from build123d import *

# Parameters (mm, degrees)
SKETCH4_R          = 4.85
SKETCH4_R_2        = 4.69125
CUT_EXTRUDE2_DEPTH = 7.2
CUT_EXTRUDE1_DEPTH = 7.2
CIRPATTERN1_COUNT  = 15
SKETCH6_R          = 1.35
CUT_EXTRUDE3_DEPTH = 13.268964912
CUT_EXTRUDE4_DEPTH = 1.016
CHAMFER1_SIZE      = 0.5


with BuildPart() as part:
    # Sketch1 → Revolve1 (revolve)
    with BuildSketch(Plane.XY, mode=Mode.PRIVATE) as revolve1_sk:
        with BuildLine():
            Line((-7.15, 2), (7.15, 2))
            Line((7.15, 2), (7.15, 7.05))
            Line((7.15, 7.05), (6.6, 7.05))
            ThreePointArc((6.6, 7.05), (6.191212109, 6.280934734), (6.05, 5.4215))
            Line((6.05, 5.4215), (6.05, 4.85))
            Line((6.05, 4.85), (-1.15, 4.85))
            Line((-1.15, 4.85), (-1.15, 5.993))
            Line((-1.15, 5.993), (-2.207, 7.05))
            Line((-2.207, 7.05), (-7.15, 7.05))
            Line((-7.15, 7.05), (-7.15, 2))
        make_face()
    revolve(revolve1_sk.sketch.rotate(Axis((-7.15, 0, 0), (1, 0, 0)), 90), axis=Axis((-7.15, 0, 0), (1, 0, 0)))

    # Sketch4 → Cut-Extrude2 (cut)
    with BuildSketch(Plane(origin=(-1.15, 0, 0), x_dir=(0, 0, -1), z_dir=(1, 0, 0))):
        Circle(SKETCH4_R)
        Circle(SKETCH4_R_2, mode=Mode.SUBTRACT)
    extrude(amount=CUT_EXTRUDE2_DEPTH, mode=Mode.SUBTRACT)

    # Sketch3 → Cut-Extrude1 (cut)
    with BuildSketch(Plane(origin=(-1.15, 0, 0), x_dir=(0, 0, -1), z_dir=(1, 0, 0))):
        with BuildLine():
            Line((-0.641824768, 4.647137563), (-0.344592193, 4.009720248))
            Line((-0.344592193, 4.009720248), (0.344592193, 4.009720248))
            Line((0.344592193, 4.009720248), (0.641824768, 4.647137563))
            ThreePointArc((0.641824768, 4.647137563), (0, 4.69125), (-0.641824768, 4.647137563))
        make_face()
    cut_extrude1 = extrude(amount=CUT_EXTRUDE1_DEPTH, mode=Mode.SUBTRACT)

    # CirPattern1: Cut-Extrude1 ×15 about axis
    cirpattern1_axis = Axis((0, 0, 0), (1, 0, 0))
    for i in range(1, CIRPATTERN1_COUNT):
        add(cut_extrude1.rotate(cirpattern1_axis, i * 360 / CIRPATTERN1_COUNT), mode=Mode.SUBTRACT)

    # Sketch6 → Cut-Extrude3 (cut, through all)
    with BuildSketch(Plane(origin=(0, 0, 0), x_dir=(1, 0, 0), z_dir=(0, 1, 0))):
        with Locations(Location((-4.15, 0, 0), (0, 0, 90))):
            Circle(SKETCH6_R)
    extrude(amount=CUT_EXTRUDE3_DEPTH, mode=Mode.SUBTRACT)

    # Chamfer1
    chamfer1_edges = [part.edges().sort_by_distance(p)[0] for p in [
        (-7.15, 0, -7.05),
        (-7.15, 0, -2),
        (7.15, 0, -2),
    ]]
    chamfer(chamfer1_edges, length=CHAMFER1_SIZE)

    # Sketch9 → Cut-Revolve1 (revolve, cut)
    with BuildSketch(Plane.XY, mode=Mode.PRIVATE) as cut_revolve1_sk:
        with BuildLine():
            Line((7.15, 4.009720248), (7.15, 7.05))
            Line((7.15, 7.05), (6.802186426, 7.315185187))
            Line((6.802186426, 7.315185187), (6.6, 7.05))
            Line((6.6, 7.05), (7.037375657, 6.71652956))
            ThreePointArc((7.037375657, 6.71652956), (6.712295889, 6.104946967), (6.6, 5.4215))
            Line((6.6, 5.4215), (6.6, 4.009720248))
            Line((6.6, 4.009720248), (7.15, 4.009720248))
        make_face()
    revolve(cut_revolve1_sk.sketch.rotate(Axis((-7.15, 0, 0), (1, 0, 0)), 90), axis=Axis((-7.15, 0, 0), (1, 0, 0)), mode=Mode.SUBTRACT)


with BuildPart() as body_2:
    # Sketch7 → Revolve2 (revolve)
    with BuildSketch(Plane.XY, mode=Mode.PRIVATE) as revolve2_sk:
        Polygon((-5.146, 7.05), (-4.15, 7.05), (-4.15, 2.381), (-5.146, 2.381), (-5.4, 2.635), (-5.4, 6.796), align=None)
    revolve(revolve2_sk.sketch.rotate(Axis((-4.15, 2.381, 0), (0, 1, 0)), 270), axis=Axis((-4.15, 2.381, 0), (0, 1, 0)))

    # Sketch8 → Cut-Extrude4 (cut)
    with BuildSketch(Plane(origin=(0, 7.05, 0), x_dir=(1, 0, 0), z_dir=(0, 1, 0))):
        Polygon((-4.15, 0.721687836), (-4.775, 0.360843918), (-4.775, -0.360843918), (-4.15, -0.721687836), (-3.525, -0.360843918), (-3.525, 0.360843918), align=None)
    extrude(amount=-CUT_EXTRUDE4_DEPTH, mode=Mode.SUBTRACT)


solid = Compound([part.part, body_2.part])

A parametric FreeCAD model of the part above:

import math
import FreeCAD as App
import Part
import Sketcher
from FreeCAD import Vector
Q = App.Units.Quantity


def edges_at(feature, points):
    """Names of the edges that pass closest to the given points."""
    edges = feature.Shape.Edges
    near = lambda p: min(range(len(edges)), key=lambda i: edges[i].distToShape(Part.Vertex(*p))[0])
    return sorted({f"Edge{near(p) + 1}" for p in points})

doc = App.newDocument("Part")
body = doc.addObject("PartDesign::Body", "Body")

# Sketch on XY plane
sketch1 = body.newObject("Sketcher::SketchObject", "Sketch")
sketch1.AttachmentSupport = (doc.getObject("XY_Plane"), [""])
sketch1.MapMode = "FlatFace"
sketch1.addGeometry(Part.LineSegment(Vector(-7.2, 2, 0), Vector(7.2, 2, 0)), False)
sketch1.addGeometry(Part.LineSegment(Vector(7.2, 2, 0), Vector(7.2, 7, 0)), False)
sketch1.addGeometry(Part.LineSegment(Vector(7.2, 7, 0), Vector(6.6, 7, 0)), False)
sketch1.addGeometry(Part.ArcOfCircle(Part.Circle(Vector(8.7, 5.4, 0), Vector(0, 0, 1), 2.7), math.radians(143), math.radians(180)), False)
sketch1.addGeometry(Part.LineSegment(Vector(6, 5.4, 0), Vector(6, 4.8, 0)), False)
sketch1.addGeometry(Part.LineSegment(Vector(6, 4.8, 0), Vector(-1.1, 4.8, 0)), False)
sketch1.addGeometry(Part.LineSegment(Vector(-1.1, 4.8, 0), Vector(-1.1, 6, 0)), False)
sketch1.addGeometry(Part.LineSegment(Vector(-1.1, 6, 0), Vector(-2.2, 7, 0)), False)
sketch1.addGeometry(Part.LineSegment(Vector(-2.2, 7, 0), Vector(-7.2, 7, 0)), False)
sketch1.addGeometry(Part.LineSegment(Vector(-7.2, 7, 0), Vector(-7.2, 2, 0)), False)
sketch1.addConstraint(Sketcher.Constraint("Coincident", 0, 2, 1, 1))
sketch1.addConstraint(Sketcher.Constraint("Coincident", 1, 2, 2, 1))
sketch1.addConstraint(Sketcher.Constraint("Coincident", 2, 2, 3, 1))
sketch1.addConstraint(Sketcher.Constraint("Tangent", 3, 2, 4, 1))
sketch1.addConstraint(Sketcher.Constraint("Coincident", 4, 2, 5, 1))
sketch1.addConstraint(Sketcher.Constraint("Coincident", 5, 2, 6, 1))
sketch1.addConstraint(Sketcher.Constraint("Coincident", 6, 2, 7, 1))
sketch1.addConstraint(Sketcher.Constraint("Coincident", 7, 2, 8, 1))
sketch1.addConstraint(Sketcher.Constraint("Coincident", 8, 2, 9, 1))
sketch1.addConstraint(Sketcher.Constraint("Coincident", 9, 2, 0, 1))
sketch1.addConstraint(Sketcher.Constraint("Horizontal", 0))
sketch1.addConstraint(Sketcher.Constraint("Vertical", 1))
sketch1.addConstraint(Sketcher.Constraint("Horizontal", 2))
sketch1.addConstraint(Sketcher.Constraint("Vertical", 4))
sketch1.addConstraint(Sketcher.Constraint("Horizontal", 5))
sketch1.addConstraint(Sketcher.Constraint("Vertical", 6))
sketch1.addConstraint(Sketcher.Constraint("Horizontal", 8))
sketch1.addConstraint(Sketcher.Constraint("Vertical", 9))
sketch1.addConstraint(Sketcher.Constraint("Symmetric", 1, 2, 8, 2, -2))
sketch1.addConstraint(Sketcher.Constraint("Angle", 7, Q("135 deg")))
sketch1.addConstraint(Sketcher.Constraint("DistanceX", 0, 1, 0, 2, Q("14.3 mm")))
sketch1.addConstraint(Sketcher.Constraint("DistanceX", 5, 2, 5, 1, Q("7.2 mm")))
sketch1.addConstraint(Sketcher.Constraint("DistanceY", -1, 1, 0, 2, Q("2 mm")))
sketch1.addConstraint(Sketcher.Constraint("DistanceX", 8, 2, 6, 2, Q("6 mm")))
sketch1.addConstraint(Sketcher.Constraint("DistanceX", 2, 2, 2, 1, Q("0.55 mm")))
sketch1.addConstraint(Sketcher.Constraint("DistanceY", 1, 1, 1, 2, Q("5.05 mm")))
sketch1.addConstraint(Sketcher.Constraint("DistanceY", 4, 2, 2, 2, Q("2.2 mm")))
sketch1.addConstraint(Sketcher.Constraint("DistanceX", 8, 2, 8, 1, Q("4.943 mm")))
sketch1.addConstraint(Sketcher.Constraint("Radius", 3, Q("2.68592 mm")))
revolution = body.newObject("PartDesign::Revolution", "Revolution")
revolution.Profile = sketch1
revolution.ReferenceAxis = (sketch1, ["H_Axis"])
revolution.Angle = 360

# Sketch on YZ plane
sketch2 = body.newObject("Sketcher::SketchObject", "Sketch001")
sketch2.AttachmentSupport = (doc.getObject("YZ_Plane"), [""])
sketch2.MapMode = "FlatFace"
sketch2.AttachmentOffset = App.Placement(Vector(0, 0, -1.15), App.Rotation())
sketch2.addGeometry(Part.Circle(Vector(0, 0, 0), Vector(0, 0, 1), 4.8), False)
sketch2.addGeometry(Part.Circle(Vector(0, 0, 0), Vector(0, 0, 1), 4.7), False)
sketch2.addConstraint(Sketcher.Constraint("Coincident", 0, 3, -1, 1))
sketch2.addConstraint(Sketcher.Constraint("Coincident", 1, 3, -1, 1))
sketch2.addConstraint(Sketcher.Constraint("Diameter", 0, Q("9.7 mm")))
sketch2.addConstraint(Sketcher.Constraint("Diameter", 1, Q("9.3825 mm")))
pocket1 = body.newObject("PartDesign::Pocket", "Pocket")
pocket1.Profile = sketch2
pocket1.Length = 7.2
pocket1.Reversed = True

# Sketch on YZ plane
sketch3 = body.newObject("Sketcher::SketchObject", "Sketch002")
sketch3.AttachmentSupport = (doc.getObject("YZ_Plane"), [""])
sketch3.MapMode = "FlatFace"
sketch3.AttachmentOffset = App.Placement(Vector(0, 0, -1.15), App.Rotation())
sketch3.addGeometry(Part.LineSegment(Vector(4.6, 0.6, 0), Vector(4, 0.3, 0)), False)
sketch3.addGeometry(Part.LineSegment(Vector(4, 0.3, 0), Vector(4, -0.3, 0)), False)
sketch3.addGeometry(Part.LineSegment(Vector(4, -0.3, 0), Vector(4.6, -0.6, 0)), False)
sketch3.addGeometry(Part.ArcOfCircle(Part.Circle(Vector(0, 0, 0), Vector(0, 0, 1), 4.7), math.radians(-7.86), math.radians(7.86)), False)
sketch3.addConstraint(Sketcher.Constraint("Coincident", 0, 2, 1, 1))
sketch3.addConstraint(Sketcher.Constraint("Coincident", 1, 2, 2, 1))
sketch3.addConstraint(Sketcher.Constraint("Coincident", 2, 2, 3, 1))
sketch3.addConstraint(Sketcher.Constraint("Coincident", 3, 2, 0, 1))
sketch3.addConstraint(Sketcher.Constraint("Vertical", 1))
sketch3.addConstraint(Sketcher.Constraint("Coincident", 3, 3, -1, 1))
sketch3.addConstraint(Sketcher.Constraint("Vertical", 2, 2, 3, 2))
sketch3.addConstraint(Sketcher.Constraint("Equal", 0, 2))
sketch3.addConstraint(Sketcher.Constraint("Angle", 0, Q("-155 deg")))
sketch3.addConstraint(Sketcher.Constraint("Radius", 3, Q("4.69125 mm")))
sketch3.addConstraint(Sketcher.Constraint("DistanceY", 1, 2, 1, 1, Q("0.689184 mm")))
sketch3.addConstraint(Sketcher.Constraint("DistanceX", -1, 1, 0, 2, Q("4.00972 mm")))
pocket2 = body.newObject("PartDesign::Pocket", "Pocket001")
pocket2.Profile = sketch3
pocket2.Length = 7.2
pocket2.Reversed = True
doc.recompute()

polarpattern = body.newObject("PartDesign::PolarPattern", "PolarPattern")
polarpattern.Originals = [pocket2]
polarpattern.Axis = (doc.getObject("X_Axis"), [""])
polarpattern.Angle = 360
polarpattern.Occurrences = 15
body.Tip = polarpattern

# Sketch on XZ plane
sketch4 = body.newObject("Sketcher::SketchObject", "Sketch003")
sketch4.AttachmentSupport = (doc.getObject("XZ_Plane"), [""])
sketch4.MapMode = "FlatFace"
sketch4.addGeometry(Part.Circle(Vector(-4.2, 0, 0), Vector(0, 0, 1), 1.4), False)
sketch4.addConstraint(Sketcher.Constraint("PointOnObject", 0, 3, -1))
sketch4.addConstraint(Sketcher.Constraint("Diameter", 0, Q("2.7 mm")))
sketch4.addConstraint(Sketcher.Constraint("DistanceX", 0, 3, -1, 1, Q("4.15 mm")))
pocket3 = body.newObject("PartDesign::Pocket", "Pocket002")
pocket3.Profile = sketch4
pocket3.Type = "ThroughAll"
doc.recompute()

chamfer = body.newObject("PartDesign::Chamfer", "Chamfer")
chamfer.Base = (pocket3, edges_at(pocket3, [(-7.15, 0, -7.05), (-7.15, 0, -2), (7.15, 0, -2)]))
chamfer.Size = 0.5

# Sketch on XY plane
sketch5 = body.newObject("Sketcher::SketchObject", "Sketch004")
sketch5.AttachmentSupport = (doc.getObject("XY_Plane"), [""])
sketch5.MapMode = "FlatFace"
sketch5.addGeometry(Part.LineSegment(Vector(7.15, 4.01, 0), Vector(7.15, 7.05, 0)), False)
sketch5.addGeometry(Part.LineSegment(Vector(7.15, 7.05, 0), Vector(6.8, 7.32, 0)), False)
sketch5.addGeometry(Part.LineSegment(Vector(6.8, 7.32, 0), Vector(6.6, 7.05, 0)), False)
sketch5.addGeometry(Part.LineSegment(Vector(6.6, 7.05, 0), Vector(7.04, 6.72, 0)), False)
sketch5.addGeometry(Part.ArcOfCircle(Part.Circle(Vector(8.74, 5.42, 0), Vector(0, 0, 1), 2.14), math.radians(143), math.radians(180)), False)
sketch5.addGeometry(Part.LineSegment(Vector(6.6, 5.42, 0), Vector(6.6, 4.01, 0)), False)
sketch5.addGeometry(Part.LineSegment(Vector(6.6, 4.01, 0), Vector(7.15, 4.01, 0)), False)
sketch5.addConstraint(Sketcher.Constraint("Coincident", 0, 2, 1, 1))
sketch5.addConstraint(Sketcher.Constraint("Coincident", 1, 2, 2, 1))
sketch5.addConstraint(Sketcher.Constraint("Coincident", 2, 2, 3, 1))
sketch5.addConstraint(Sketcher.Constraint("Coincident", 3, 2, 4, 1))
sketch5.addConstraint(Sketcher.Constraint("Tangent", 4, 2, 5, 1))
sketch5.addConstraint(Sketcher.Constraint("Coincident", 5, 2, 6, 1))
sketch5.addConstraint(Sketcher.Constraint("Coincident", 6, 2, 0, 1))
sketch5.addConstraint(Sketcher.Constraint("Vertical", 0))
sketch5.addConstraint(Sketcher.Constraint("Vertical", 5))
sketch5.addConstraint(Sketcher.Constraint("Horizontal", 6))
sketch5.addConstraint(Sketcher.Constraint("Perpendicular", 1, 2))
sketch5.addConstraint(Sketcher.Constraint("Perpendicular", 2, 3))
sketch5.addConstraint(Sketcher.Constraint("Horizontal", 0, 2, 2, 2))
sketch5.addConstraint(Sketcher.Constraint("Vertical", 2, 2, 4, 2))
sketch5.addConstraint(Sketcher.Constraint("DistanceX", 6, 1, 6, 2, Q("0.55 mm")))
sketch5.addConstraint(Sketcher.Constraint("DistanceX", -1, 1, 2, 2, Q("6.6 mm")))
sketch5.addConstraint(Sketcher.Constraint("Distance", 3, Q("0.55 mm")))
sketch5.addConstraint(Sketcher.Constraint("DistanceY", -1, 1, 0, 2, Q("7.05 mm")))
sketch5.addConstraint(Sketcher.Constraint("Radius", 4, Q("2.13592 mm")))
sketch5.addConstraint(Sketcher.Constraint("DistanceY", 0, 1, 0, 2, Q("3.04028 mm")))
sketch5.addConstraint(Sketcher.Constraint("Distance", 2, Q("0.33347 mm")))
groove = body.newObject("PartDesign::Groove", "Groove")
groove.Profile = sketch5
groove.ReferenceAxis = (sketch5, ["H_Axis"])
groove.Angle = 360
body2 = doc.addObject("PartDesign::Body", "Body001")

# Sketch on XY plane
sketch6 = body2.newObject("Sketcher::SketchObject", "Sketch005")
sketch6.AttachmentSupport = (doc.getObject("XY_Plane001"), [""])
sketch6.MapMode = "FlatFace"
sketch6.addGeometry(Part.LineSegment(Vector(-4.15, 7.05, 0), Vector(-5.15, 7.05, 0)), False)
sketch6.addGeometry(Part.LineSegment(Vector(-5.15, 7.05, 0), Vector(-5.4, 6.8, 0)), False)
sketch6.addGeometry(Part.LineSegment(Vector(-5.4, 6.8, 0), Vector(-5.4, 2.63, 0)), False)
sketch6.addGeometry(Part.LineSegment(Vector(-5.4, 2.63, 0), Vector(-5.15, 2.38, 0)), False)
sketch6.addGeometry(Part.LineSegment(Vector(-5.15, 2.38, 0), Vector(-4.15, 2.38, 0)), False)
sketch6.addGeometry(Part.LineSegment(Vector(-4.15, 2.38, 0), Vector(-4.15, 7.05, 0)), False)
sketch6.addGeometry(Part.LineSegment(Vector(-4.15, 2.38, 0), Vector(-4.15, 7.05, 0)), True)  # axis
sketch6.addConstraint(Sketcher.Constraint("Coincident", 0, 2, 1, 1))
sketch6.addConstraint(Sketcher.Constraint("Coincident", 1, 2, 2, 1))
sketch6.addConstraint(Sketcher.Constraint("Coincident", 2, 2, 3, 1))
sketch6.addConstraint(Sketcher.Constraint("Coincident", 3, 2, 4, 1))
sketch6.addConstraint(Sketcher.Constraint("Coincident", 4, 2, 5, 1))
sketch6.addConstraint(Sketcher.Constraint("Coincident", 5, 2, 0, 1))
sketch6.addConstraint(Sketcher.Constraint("Horizontal", 0))
sketch6.addConstraint(Sketcher.Constraint("Vertical", 2))
sketch6.addConstraint(Sketcher.Constraint("Horizontal", 4))
sketch6.addConstraint(Sketcher.Constraint("Vertical", 5))
sketch6.addConstraint(Sketcher.Constraint("Vertical", 6))
sketch6.addConstraint(Sketcher.Constraint("Coincident", 6, 1, 4, 2))
sketch6.addConstraint(Sketcher.Constraint("Perpendicular", 1, 3))
sketch6.addConstraint(Sketcher.Constraint("Horizontal", 0, 2, 6, 2))
sketch6.addConstraint(Sketcher.Constraint("Vertical", 0, 2, 3, 2))
sketch6.addConstraint(Sketcher.Constraint("Equal", 1, 3))
sketch6.addConstraint(Sketcher.Constraint("DistanceX", 1, 2, -1, 1, Q("5.4 mm")))
sketch6.addConstraint(Sketcher.Constraint("DistanceX", 0, 2, 0, 1, Q("0.996 mm")))
sketch6.addConstraint(Sketcher.Constraint("DistanceY", 2, 2, 2, 1, Q("4.161 mm")))
sketch6.addConstraint(Sketcher.Constraint("DistanceY", 5, 1, 5, 2, Q("4.669 mm")))
sketch6.addConstraint(Sketcher.Constraint("DistanceY", -1, 1, 0, 2, Q("7.05 mm")))
revolution2 = body2.newObject("PartDesign::Revolution", "Revolution001")
revolution2.Profile = sketch6
revolution2.ReferenceAxis = (sketch6, ["Axis0"])
revolution2.Angle = 360

# Sketch on XZ plane
sketch7 = body2.newObject("Sketcher::SketchObject", "Sketch006")
sketch7.AttachmentSupport = (doc.getObject("XZ_Plane001"), [""])
sketch7.MapMode = "FlatFace"
sketch7.AttachmentOffset = App.Placement(Vector(0, 0, -7.05), App.Rotation())
sketch7.addGeometry(Part.LineSegment(Vector(-4.2, -0.7, 0), Vector(-4.8, -0.4, 0)), False)
sketch7.addGeometry(Part.LineSegment(Vector(-4.8, -0.4, 0), Vector(-4.8, 0.4, 0)), False)
sketch7.addGeometry(Part.LineSegment(Vector(-4.8, 0.4, 0), Vector(-4.2, 0.7, 0)), False)
sketch7.addGeometry(Part.LineSegment(Vector(-4.2, 0.7, 0), Vector(-3.5, 0.4, 0)), False)
sketch7.addGeometry(Part.LineSegment(Vector(-3.5, 0.4, 0), Vector(-3.5, -0.4, 0)), False)
sketch7.addGeometry(Part.LineSegment(Vector(-3.5, -0.4, 0), Vector(-4.2, -0.7, 0)), False)
sketch7.addConstraint(Sketcher.Constraint("Coincident", 0, 2, 1, 1))
sketch7.addConstraint(Sketcher.Constraint("Coincident", 1, 2, 2, 1))
sketch7.addConstraint(Sketcher.Constraint("Coincident", 2, 2, 3, 1))
sketch7.addConstraint(Sketcher.Constraint("Coincident", 3, 2, 4, 1))
sketch7.addConstraint(Sketcher.Constraint("Coincident", 4, 2, 5, 1))
sketch7.addConstraint(Sketcher.Constraint("Coincident", 5, 2, 0, 1))
sketch7.addConstraint(Sketcher.Constraint("Vertical", 1))
sketch7.addConstraint(Sketcher.Constraint("Vertical", 4))
sketch7.addConstraint(Sketcher.Constraint("Symmetric", 2, 2, 5, 2, -1))
sketch7.addConstraint(Sketcher.Constraint("Parallel", 0, 3))
sketch7.addConstraint(Sketcher.Constraint("Parallel", 2, 5))
sketch7.addConstraint(Sketcher.Constraint("Horizontal", 1, 2, 3, 2))
sketch7.addConstraint(Sketcher.Constraint("Horizontal", 0, 2, 4, 2))
sketch7.addConstraint(Sketcher.Constraint("Angle", 0, Q("150 deg")))
sketch7.addConstraint(Sketcher.Constraint("DistanceX", 2, 2, -1, 1, Q("4.15 mm")))
sketch7.addConstraint(Sketcher.Constraint("DistanceX", 1, 2, 3, 2, Q("1.25 mm")))
sketch7.addConstraint(Sketcher.Constraint("DistanceY", 1, 1, 1, 2, Q("0.721688 mm")))
pocket4 = body2.newObject("PartDesign::Pocket", "Pocket003")
pocket4.Profile = sketch7
pocket4.Length = 1.016
pocket4.Reversed = True

doc.recompute()
